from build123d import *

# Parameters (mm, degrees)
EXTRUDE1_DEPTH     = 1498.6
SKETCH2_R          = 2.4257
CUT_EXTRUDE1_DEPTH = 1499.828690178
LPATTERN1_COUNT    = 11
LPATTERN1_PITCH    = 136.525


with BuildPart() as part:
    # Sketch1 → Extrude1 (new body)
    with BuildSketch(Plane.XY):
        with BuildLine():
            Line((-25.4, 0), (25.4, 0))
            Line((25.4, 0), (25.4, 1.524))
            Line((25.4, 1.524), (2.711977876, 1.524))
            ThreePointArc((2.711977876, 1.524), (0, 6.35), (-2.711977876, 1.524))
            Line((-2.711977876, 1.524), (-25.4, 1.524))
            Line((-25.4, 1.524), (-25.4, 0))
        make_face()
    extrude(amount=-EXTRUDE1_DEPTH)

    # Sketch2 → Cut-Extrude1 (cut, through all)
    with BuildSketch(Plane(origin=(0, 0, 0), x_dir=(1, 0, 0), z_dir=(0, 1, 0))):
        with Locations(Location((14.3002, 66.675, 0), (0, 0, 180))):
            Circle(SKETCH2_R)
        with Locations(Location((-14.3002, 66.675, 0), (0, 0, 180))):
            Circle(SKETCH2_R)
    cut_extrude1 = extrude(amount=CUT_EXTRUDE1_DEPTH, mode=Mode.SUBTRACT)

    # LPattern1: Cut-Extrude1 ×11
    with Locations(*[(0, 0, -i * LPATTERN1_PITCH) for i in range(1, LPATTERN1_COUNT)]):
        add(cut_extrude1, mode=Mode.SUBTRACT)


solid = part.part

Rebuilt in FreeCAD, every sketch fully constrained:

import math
import FreeCAD as App
import Part
import Sketcher
from FreeCAD import Vector
Q = App.Units.Quantity

doc = App.newDocument("Part")
body = doc.addObject("PartDesign::Body", "Body")

sketch1 = body.newObject("Sketcher::SketchObject", "Sketch")
sketch1.AttachmentSupport = (doc.getObject("XY_Plane"), [""])
sketch1.MapMode = "FlatFace"
sketch1.addGeometry([
    Part.LineSegment(Vector(-25.4, 0, 0), Vector(25.4, 0, 0)),
    Part.LineSegment(Vector(25.4, 0, 0), Vector(25.4, 1.5, 0)),
    Part.LineSegment(Vector(25.4, 1.5, 0), Vector(2.7, 1.5, 0)),
    Part.ArcOfCircle(Part.Circle(Vector(0, 3.2, 0), Vector(0, 0, 1), 3.2), math.radians(-31), math.radians(211)),
    Part.LineSegment(Vector(-2.7, 1.5, 0), Vector(-25.4, 1.5, 0)),
    Part.LineSegment(Vector(-25.4, 1.5, 0), Vector(-25.4, 0, 0)),
], False)
sketch1.addConstraint([
    Sketcher.Constraint("Coincident", 0, 2, 1, 1),
    Sketcher.Constraint("Coincident", 1, 2, 2, 1),
    Sketcher.Constraint("Coincident", 2, 2, 3, 1),
    Sketcher.Constraint("Coincident", 3, 2, 4, 1),
    Sketcher.Constraint("Coincident", 4, 2, 5, 1),
    Sketcher.Constraint("Coincident", 5, 2, 0, 1),
    Sketcher.Constraint("Horizontal", 0),
    Sketcher.Constraint("Vertical", 1),
    Sketcher.Constraint("Horizontal", 2),
    Sketcher.Constraint("Horizontal", 4),
    Sketcher.Constraint("Vertical", 5),
    Sketcher.Constraint("Symmetric", 0, 2, 5, 2, -1, 1),
    Sketcher.Constraint("Symmetric", 2, 2, 3, 2, -2),
    Sketcher.Constraint("DistanceX", 0, 1, 0, 2, Q("2 in")),
    Sketcher.Constraint("Radius", 3, Q("0.125 in")),
    Sketcher.Constraint("DistanceY", 1, 1, 1, 2, Q("0.06 in")),
    Sketcher.Constraint("DistanceY", -1, 1, 3, 3, Q("0.125 in")),
])
pad1 = body.newObject("PartDesign::Pad", "Pad")
pad1.Profile = sketch1
pad1.Length = Q("59 in")
pad1.Reversed = True

sketch2 = body.newObject("Sketcher::SketchObject", "Sketch001")
sketch2.AttachmentSupport = (doc.getObject("XZ_Plane"), [""])
sketch2.MapMode = "FlatFace"
sketch2.addGeometry([
    Part.Circle(Vector(14.3, -66.7, 0), Vector(0, 0, 1), 2.4),
    Part.Circle(Vector(-14.3, -66.7, 0), Vector(0, 0, 1), 2.4),
], False)
sketch2.addConstraint([
    Sketcher.Constraint("Equal", 0, 1),
    Sketcher.Constraint("Symmetric", 0, 3, 1, 3, -2),
    Sketcher.Constraint("Diameter", 0, Q("0.191 in")),
    Sketcher.Constraint("DistanceX", -1, 1, 0, 3, Q("0.563 in")),
    Sketcher.Constraint("DistanceY", 0, 3, -1, 1, Q("2.625 in")),
])
pocket1 = body.newObject("PartDesign::Pocket", "Pocket")
pocket1.Profile = sketch2
pocket1.Type = "ThroughAll"
doc.recompute()

linearpattern = body.newObject("PartDesign::LinearPattern", "LinearPattern")
linearpattern.Originals = [pocket1]
linearpattern.Direction = (doc.getObject("Z_Axis"), [""])
linearpattern.Mode = "offset"
linearpattern.Offset = Q("5.375 in")
linearpattern.Occurrences = 11
linearpattern.Reversed = True
body.Tip = linearpattern

doc.recompute()
